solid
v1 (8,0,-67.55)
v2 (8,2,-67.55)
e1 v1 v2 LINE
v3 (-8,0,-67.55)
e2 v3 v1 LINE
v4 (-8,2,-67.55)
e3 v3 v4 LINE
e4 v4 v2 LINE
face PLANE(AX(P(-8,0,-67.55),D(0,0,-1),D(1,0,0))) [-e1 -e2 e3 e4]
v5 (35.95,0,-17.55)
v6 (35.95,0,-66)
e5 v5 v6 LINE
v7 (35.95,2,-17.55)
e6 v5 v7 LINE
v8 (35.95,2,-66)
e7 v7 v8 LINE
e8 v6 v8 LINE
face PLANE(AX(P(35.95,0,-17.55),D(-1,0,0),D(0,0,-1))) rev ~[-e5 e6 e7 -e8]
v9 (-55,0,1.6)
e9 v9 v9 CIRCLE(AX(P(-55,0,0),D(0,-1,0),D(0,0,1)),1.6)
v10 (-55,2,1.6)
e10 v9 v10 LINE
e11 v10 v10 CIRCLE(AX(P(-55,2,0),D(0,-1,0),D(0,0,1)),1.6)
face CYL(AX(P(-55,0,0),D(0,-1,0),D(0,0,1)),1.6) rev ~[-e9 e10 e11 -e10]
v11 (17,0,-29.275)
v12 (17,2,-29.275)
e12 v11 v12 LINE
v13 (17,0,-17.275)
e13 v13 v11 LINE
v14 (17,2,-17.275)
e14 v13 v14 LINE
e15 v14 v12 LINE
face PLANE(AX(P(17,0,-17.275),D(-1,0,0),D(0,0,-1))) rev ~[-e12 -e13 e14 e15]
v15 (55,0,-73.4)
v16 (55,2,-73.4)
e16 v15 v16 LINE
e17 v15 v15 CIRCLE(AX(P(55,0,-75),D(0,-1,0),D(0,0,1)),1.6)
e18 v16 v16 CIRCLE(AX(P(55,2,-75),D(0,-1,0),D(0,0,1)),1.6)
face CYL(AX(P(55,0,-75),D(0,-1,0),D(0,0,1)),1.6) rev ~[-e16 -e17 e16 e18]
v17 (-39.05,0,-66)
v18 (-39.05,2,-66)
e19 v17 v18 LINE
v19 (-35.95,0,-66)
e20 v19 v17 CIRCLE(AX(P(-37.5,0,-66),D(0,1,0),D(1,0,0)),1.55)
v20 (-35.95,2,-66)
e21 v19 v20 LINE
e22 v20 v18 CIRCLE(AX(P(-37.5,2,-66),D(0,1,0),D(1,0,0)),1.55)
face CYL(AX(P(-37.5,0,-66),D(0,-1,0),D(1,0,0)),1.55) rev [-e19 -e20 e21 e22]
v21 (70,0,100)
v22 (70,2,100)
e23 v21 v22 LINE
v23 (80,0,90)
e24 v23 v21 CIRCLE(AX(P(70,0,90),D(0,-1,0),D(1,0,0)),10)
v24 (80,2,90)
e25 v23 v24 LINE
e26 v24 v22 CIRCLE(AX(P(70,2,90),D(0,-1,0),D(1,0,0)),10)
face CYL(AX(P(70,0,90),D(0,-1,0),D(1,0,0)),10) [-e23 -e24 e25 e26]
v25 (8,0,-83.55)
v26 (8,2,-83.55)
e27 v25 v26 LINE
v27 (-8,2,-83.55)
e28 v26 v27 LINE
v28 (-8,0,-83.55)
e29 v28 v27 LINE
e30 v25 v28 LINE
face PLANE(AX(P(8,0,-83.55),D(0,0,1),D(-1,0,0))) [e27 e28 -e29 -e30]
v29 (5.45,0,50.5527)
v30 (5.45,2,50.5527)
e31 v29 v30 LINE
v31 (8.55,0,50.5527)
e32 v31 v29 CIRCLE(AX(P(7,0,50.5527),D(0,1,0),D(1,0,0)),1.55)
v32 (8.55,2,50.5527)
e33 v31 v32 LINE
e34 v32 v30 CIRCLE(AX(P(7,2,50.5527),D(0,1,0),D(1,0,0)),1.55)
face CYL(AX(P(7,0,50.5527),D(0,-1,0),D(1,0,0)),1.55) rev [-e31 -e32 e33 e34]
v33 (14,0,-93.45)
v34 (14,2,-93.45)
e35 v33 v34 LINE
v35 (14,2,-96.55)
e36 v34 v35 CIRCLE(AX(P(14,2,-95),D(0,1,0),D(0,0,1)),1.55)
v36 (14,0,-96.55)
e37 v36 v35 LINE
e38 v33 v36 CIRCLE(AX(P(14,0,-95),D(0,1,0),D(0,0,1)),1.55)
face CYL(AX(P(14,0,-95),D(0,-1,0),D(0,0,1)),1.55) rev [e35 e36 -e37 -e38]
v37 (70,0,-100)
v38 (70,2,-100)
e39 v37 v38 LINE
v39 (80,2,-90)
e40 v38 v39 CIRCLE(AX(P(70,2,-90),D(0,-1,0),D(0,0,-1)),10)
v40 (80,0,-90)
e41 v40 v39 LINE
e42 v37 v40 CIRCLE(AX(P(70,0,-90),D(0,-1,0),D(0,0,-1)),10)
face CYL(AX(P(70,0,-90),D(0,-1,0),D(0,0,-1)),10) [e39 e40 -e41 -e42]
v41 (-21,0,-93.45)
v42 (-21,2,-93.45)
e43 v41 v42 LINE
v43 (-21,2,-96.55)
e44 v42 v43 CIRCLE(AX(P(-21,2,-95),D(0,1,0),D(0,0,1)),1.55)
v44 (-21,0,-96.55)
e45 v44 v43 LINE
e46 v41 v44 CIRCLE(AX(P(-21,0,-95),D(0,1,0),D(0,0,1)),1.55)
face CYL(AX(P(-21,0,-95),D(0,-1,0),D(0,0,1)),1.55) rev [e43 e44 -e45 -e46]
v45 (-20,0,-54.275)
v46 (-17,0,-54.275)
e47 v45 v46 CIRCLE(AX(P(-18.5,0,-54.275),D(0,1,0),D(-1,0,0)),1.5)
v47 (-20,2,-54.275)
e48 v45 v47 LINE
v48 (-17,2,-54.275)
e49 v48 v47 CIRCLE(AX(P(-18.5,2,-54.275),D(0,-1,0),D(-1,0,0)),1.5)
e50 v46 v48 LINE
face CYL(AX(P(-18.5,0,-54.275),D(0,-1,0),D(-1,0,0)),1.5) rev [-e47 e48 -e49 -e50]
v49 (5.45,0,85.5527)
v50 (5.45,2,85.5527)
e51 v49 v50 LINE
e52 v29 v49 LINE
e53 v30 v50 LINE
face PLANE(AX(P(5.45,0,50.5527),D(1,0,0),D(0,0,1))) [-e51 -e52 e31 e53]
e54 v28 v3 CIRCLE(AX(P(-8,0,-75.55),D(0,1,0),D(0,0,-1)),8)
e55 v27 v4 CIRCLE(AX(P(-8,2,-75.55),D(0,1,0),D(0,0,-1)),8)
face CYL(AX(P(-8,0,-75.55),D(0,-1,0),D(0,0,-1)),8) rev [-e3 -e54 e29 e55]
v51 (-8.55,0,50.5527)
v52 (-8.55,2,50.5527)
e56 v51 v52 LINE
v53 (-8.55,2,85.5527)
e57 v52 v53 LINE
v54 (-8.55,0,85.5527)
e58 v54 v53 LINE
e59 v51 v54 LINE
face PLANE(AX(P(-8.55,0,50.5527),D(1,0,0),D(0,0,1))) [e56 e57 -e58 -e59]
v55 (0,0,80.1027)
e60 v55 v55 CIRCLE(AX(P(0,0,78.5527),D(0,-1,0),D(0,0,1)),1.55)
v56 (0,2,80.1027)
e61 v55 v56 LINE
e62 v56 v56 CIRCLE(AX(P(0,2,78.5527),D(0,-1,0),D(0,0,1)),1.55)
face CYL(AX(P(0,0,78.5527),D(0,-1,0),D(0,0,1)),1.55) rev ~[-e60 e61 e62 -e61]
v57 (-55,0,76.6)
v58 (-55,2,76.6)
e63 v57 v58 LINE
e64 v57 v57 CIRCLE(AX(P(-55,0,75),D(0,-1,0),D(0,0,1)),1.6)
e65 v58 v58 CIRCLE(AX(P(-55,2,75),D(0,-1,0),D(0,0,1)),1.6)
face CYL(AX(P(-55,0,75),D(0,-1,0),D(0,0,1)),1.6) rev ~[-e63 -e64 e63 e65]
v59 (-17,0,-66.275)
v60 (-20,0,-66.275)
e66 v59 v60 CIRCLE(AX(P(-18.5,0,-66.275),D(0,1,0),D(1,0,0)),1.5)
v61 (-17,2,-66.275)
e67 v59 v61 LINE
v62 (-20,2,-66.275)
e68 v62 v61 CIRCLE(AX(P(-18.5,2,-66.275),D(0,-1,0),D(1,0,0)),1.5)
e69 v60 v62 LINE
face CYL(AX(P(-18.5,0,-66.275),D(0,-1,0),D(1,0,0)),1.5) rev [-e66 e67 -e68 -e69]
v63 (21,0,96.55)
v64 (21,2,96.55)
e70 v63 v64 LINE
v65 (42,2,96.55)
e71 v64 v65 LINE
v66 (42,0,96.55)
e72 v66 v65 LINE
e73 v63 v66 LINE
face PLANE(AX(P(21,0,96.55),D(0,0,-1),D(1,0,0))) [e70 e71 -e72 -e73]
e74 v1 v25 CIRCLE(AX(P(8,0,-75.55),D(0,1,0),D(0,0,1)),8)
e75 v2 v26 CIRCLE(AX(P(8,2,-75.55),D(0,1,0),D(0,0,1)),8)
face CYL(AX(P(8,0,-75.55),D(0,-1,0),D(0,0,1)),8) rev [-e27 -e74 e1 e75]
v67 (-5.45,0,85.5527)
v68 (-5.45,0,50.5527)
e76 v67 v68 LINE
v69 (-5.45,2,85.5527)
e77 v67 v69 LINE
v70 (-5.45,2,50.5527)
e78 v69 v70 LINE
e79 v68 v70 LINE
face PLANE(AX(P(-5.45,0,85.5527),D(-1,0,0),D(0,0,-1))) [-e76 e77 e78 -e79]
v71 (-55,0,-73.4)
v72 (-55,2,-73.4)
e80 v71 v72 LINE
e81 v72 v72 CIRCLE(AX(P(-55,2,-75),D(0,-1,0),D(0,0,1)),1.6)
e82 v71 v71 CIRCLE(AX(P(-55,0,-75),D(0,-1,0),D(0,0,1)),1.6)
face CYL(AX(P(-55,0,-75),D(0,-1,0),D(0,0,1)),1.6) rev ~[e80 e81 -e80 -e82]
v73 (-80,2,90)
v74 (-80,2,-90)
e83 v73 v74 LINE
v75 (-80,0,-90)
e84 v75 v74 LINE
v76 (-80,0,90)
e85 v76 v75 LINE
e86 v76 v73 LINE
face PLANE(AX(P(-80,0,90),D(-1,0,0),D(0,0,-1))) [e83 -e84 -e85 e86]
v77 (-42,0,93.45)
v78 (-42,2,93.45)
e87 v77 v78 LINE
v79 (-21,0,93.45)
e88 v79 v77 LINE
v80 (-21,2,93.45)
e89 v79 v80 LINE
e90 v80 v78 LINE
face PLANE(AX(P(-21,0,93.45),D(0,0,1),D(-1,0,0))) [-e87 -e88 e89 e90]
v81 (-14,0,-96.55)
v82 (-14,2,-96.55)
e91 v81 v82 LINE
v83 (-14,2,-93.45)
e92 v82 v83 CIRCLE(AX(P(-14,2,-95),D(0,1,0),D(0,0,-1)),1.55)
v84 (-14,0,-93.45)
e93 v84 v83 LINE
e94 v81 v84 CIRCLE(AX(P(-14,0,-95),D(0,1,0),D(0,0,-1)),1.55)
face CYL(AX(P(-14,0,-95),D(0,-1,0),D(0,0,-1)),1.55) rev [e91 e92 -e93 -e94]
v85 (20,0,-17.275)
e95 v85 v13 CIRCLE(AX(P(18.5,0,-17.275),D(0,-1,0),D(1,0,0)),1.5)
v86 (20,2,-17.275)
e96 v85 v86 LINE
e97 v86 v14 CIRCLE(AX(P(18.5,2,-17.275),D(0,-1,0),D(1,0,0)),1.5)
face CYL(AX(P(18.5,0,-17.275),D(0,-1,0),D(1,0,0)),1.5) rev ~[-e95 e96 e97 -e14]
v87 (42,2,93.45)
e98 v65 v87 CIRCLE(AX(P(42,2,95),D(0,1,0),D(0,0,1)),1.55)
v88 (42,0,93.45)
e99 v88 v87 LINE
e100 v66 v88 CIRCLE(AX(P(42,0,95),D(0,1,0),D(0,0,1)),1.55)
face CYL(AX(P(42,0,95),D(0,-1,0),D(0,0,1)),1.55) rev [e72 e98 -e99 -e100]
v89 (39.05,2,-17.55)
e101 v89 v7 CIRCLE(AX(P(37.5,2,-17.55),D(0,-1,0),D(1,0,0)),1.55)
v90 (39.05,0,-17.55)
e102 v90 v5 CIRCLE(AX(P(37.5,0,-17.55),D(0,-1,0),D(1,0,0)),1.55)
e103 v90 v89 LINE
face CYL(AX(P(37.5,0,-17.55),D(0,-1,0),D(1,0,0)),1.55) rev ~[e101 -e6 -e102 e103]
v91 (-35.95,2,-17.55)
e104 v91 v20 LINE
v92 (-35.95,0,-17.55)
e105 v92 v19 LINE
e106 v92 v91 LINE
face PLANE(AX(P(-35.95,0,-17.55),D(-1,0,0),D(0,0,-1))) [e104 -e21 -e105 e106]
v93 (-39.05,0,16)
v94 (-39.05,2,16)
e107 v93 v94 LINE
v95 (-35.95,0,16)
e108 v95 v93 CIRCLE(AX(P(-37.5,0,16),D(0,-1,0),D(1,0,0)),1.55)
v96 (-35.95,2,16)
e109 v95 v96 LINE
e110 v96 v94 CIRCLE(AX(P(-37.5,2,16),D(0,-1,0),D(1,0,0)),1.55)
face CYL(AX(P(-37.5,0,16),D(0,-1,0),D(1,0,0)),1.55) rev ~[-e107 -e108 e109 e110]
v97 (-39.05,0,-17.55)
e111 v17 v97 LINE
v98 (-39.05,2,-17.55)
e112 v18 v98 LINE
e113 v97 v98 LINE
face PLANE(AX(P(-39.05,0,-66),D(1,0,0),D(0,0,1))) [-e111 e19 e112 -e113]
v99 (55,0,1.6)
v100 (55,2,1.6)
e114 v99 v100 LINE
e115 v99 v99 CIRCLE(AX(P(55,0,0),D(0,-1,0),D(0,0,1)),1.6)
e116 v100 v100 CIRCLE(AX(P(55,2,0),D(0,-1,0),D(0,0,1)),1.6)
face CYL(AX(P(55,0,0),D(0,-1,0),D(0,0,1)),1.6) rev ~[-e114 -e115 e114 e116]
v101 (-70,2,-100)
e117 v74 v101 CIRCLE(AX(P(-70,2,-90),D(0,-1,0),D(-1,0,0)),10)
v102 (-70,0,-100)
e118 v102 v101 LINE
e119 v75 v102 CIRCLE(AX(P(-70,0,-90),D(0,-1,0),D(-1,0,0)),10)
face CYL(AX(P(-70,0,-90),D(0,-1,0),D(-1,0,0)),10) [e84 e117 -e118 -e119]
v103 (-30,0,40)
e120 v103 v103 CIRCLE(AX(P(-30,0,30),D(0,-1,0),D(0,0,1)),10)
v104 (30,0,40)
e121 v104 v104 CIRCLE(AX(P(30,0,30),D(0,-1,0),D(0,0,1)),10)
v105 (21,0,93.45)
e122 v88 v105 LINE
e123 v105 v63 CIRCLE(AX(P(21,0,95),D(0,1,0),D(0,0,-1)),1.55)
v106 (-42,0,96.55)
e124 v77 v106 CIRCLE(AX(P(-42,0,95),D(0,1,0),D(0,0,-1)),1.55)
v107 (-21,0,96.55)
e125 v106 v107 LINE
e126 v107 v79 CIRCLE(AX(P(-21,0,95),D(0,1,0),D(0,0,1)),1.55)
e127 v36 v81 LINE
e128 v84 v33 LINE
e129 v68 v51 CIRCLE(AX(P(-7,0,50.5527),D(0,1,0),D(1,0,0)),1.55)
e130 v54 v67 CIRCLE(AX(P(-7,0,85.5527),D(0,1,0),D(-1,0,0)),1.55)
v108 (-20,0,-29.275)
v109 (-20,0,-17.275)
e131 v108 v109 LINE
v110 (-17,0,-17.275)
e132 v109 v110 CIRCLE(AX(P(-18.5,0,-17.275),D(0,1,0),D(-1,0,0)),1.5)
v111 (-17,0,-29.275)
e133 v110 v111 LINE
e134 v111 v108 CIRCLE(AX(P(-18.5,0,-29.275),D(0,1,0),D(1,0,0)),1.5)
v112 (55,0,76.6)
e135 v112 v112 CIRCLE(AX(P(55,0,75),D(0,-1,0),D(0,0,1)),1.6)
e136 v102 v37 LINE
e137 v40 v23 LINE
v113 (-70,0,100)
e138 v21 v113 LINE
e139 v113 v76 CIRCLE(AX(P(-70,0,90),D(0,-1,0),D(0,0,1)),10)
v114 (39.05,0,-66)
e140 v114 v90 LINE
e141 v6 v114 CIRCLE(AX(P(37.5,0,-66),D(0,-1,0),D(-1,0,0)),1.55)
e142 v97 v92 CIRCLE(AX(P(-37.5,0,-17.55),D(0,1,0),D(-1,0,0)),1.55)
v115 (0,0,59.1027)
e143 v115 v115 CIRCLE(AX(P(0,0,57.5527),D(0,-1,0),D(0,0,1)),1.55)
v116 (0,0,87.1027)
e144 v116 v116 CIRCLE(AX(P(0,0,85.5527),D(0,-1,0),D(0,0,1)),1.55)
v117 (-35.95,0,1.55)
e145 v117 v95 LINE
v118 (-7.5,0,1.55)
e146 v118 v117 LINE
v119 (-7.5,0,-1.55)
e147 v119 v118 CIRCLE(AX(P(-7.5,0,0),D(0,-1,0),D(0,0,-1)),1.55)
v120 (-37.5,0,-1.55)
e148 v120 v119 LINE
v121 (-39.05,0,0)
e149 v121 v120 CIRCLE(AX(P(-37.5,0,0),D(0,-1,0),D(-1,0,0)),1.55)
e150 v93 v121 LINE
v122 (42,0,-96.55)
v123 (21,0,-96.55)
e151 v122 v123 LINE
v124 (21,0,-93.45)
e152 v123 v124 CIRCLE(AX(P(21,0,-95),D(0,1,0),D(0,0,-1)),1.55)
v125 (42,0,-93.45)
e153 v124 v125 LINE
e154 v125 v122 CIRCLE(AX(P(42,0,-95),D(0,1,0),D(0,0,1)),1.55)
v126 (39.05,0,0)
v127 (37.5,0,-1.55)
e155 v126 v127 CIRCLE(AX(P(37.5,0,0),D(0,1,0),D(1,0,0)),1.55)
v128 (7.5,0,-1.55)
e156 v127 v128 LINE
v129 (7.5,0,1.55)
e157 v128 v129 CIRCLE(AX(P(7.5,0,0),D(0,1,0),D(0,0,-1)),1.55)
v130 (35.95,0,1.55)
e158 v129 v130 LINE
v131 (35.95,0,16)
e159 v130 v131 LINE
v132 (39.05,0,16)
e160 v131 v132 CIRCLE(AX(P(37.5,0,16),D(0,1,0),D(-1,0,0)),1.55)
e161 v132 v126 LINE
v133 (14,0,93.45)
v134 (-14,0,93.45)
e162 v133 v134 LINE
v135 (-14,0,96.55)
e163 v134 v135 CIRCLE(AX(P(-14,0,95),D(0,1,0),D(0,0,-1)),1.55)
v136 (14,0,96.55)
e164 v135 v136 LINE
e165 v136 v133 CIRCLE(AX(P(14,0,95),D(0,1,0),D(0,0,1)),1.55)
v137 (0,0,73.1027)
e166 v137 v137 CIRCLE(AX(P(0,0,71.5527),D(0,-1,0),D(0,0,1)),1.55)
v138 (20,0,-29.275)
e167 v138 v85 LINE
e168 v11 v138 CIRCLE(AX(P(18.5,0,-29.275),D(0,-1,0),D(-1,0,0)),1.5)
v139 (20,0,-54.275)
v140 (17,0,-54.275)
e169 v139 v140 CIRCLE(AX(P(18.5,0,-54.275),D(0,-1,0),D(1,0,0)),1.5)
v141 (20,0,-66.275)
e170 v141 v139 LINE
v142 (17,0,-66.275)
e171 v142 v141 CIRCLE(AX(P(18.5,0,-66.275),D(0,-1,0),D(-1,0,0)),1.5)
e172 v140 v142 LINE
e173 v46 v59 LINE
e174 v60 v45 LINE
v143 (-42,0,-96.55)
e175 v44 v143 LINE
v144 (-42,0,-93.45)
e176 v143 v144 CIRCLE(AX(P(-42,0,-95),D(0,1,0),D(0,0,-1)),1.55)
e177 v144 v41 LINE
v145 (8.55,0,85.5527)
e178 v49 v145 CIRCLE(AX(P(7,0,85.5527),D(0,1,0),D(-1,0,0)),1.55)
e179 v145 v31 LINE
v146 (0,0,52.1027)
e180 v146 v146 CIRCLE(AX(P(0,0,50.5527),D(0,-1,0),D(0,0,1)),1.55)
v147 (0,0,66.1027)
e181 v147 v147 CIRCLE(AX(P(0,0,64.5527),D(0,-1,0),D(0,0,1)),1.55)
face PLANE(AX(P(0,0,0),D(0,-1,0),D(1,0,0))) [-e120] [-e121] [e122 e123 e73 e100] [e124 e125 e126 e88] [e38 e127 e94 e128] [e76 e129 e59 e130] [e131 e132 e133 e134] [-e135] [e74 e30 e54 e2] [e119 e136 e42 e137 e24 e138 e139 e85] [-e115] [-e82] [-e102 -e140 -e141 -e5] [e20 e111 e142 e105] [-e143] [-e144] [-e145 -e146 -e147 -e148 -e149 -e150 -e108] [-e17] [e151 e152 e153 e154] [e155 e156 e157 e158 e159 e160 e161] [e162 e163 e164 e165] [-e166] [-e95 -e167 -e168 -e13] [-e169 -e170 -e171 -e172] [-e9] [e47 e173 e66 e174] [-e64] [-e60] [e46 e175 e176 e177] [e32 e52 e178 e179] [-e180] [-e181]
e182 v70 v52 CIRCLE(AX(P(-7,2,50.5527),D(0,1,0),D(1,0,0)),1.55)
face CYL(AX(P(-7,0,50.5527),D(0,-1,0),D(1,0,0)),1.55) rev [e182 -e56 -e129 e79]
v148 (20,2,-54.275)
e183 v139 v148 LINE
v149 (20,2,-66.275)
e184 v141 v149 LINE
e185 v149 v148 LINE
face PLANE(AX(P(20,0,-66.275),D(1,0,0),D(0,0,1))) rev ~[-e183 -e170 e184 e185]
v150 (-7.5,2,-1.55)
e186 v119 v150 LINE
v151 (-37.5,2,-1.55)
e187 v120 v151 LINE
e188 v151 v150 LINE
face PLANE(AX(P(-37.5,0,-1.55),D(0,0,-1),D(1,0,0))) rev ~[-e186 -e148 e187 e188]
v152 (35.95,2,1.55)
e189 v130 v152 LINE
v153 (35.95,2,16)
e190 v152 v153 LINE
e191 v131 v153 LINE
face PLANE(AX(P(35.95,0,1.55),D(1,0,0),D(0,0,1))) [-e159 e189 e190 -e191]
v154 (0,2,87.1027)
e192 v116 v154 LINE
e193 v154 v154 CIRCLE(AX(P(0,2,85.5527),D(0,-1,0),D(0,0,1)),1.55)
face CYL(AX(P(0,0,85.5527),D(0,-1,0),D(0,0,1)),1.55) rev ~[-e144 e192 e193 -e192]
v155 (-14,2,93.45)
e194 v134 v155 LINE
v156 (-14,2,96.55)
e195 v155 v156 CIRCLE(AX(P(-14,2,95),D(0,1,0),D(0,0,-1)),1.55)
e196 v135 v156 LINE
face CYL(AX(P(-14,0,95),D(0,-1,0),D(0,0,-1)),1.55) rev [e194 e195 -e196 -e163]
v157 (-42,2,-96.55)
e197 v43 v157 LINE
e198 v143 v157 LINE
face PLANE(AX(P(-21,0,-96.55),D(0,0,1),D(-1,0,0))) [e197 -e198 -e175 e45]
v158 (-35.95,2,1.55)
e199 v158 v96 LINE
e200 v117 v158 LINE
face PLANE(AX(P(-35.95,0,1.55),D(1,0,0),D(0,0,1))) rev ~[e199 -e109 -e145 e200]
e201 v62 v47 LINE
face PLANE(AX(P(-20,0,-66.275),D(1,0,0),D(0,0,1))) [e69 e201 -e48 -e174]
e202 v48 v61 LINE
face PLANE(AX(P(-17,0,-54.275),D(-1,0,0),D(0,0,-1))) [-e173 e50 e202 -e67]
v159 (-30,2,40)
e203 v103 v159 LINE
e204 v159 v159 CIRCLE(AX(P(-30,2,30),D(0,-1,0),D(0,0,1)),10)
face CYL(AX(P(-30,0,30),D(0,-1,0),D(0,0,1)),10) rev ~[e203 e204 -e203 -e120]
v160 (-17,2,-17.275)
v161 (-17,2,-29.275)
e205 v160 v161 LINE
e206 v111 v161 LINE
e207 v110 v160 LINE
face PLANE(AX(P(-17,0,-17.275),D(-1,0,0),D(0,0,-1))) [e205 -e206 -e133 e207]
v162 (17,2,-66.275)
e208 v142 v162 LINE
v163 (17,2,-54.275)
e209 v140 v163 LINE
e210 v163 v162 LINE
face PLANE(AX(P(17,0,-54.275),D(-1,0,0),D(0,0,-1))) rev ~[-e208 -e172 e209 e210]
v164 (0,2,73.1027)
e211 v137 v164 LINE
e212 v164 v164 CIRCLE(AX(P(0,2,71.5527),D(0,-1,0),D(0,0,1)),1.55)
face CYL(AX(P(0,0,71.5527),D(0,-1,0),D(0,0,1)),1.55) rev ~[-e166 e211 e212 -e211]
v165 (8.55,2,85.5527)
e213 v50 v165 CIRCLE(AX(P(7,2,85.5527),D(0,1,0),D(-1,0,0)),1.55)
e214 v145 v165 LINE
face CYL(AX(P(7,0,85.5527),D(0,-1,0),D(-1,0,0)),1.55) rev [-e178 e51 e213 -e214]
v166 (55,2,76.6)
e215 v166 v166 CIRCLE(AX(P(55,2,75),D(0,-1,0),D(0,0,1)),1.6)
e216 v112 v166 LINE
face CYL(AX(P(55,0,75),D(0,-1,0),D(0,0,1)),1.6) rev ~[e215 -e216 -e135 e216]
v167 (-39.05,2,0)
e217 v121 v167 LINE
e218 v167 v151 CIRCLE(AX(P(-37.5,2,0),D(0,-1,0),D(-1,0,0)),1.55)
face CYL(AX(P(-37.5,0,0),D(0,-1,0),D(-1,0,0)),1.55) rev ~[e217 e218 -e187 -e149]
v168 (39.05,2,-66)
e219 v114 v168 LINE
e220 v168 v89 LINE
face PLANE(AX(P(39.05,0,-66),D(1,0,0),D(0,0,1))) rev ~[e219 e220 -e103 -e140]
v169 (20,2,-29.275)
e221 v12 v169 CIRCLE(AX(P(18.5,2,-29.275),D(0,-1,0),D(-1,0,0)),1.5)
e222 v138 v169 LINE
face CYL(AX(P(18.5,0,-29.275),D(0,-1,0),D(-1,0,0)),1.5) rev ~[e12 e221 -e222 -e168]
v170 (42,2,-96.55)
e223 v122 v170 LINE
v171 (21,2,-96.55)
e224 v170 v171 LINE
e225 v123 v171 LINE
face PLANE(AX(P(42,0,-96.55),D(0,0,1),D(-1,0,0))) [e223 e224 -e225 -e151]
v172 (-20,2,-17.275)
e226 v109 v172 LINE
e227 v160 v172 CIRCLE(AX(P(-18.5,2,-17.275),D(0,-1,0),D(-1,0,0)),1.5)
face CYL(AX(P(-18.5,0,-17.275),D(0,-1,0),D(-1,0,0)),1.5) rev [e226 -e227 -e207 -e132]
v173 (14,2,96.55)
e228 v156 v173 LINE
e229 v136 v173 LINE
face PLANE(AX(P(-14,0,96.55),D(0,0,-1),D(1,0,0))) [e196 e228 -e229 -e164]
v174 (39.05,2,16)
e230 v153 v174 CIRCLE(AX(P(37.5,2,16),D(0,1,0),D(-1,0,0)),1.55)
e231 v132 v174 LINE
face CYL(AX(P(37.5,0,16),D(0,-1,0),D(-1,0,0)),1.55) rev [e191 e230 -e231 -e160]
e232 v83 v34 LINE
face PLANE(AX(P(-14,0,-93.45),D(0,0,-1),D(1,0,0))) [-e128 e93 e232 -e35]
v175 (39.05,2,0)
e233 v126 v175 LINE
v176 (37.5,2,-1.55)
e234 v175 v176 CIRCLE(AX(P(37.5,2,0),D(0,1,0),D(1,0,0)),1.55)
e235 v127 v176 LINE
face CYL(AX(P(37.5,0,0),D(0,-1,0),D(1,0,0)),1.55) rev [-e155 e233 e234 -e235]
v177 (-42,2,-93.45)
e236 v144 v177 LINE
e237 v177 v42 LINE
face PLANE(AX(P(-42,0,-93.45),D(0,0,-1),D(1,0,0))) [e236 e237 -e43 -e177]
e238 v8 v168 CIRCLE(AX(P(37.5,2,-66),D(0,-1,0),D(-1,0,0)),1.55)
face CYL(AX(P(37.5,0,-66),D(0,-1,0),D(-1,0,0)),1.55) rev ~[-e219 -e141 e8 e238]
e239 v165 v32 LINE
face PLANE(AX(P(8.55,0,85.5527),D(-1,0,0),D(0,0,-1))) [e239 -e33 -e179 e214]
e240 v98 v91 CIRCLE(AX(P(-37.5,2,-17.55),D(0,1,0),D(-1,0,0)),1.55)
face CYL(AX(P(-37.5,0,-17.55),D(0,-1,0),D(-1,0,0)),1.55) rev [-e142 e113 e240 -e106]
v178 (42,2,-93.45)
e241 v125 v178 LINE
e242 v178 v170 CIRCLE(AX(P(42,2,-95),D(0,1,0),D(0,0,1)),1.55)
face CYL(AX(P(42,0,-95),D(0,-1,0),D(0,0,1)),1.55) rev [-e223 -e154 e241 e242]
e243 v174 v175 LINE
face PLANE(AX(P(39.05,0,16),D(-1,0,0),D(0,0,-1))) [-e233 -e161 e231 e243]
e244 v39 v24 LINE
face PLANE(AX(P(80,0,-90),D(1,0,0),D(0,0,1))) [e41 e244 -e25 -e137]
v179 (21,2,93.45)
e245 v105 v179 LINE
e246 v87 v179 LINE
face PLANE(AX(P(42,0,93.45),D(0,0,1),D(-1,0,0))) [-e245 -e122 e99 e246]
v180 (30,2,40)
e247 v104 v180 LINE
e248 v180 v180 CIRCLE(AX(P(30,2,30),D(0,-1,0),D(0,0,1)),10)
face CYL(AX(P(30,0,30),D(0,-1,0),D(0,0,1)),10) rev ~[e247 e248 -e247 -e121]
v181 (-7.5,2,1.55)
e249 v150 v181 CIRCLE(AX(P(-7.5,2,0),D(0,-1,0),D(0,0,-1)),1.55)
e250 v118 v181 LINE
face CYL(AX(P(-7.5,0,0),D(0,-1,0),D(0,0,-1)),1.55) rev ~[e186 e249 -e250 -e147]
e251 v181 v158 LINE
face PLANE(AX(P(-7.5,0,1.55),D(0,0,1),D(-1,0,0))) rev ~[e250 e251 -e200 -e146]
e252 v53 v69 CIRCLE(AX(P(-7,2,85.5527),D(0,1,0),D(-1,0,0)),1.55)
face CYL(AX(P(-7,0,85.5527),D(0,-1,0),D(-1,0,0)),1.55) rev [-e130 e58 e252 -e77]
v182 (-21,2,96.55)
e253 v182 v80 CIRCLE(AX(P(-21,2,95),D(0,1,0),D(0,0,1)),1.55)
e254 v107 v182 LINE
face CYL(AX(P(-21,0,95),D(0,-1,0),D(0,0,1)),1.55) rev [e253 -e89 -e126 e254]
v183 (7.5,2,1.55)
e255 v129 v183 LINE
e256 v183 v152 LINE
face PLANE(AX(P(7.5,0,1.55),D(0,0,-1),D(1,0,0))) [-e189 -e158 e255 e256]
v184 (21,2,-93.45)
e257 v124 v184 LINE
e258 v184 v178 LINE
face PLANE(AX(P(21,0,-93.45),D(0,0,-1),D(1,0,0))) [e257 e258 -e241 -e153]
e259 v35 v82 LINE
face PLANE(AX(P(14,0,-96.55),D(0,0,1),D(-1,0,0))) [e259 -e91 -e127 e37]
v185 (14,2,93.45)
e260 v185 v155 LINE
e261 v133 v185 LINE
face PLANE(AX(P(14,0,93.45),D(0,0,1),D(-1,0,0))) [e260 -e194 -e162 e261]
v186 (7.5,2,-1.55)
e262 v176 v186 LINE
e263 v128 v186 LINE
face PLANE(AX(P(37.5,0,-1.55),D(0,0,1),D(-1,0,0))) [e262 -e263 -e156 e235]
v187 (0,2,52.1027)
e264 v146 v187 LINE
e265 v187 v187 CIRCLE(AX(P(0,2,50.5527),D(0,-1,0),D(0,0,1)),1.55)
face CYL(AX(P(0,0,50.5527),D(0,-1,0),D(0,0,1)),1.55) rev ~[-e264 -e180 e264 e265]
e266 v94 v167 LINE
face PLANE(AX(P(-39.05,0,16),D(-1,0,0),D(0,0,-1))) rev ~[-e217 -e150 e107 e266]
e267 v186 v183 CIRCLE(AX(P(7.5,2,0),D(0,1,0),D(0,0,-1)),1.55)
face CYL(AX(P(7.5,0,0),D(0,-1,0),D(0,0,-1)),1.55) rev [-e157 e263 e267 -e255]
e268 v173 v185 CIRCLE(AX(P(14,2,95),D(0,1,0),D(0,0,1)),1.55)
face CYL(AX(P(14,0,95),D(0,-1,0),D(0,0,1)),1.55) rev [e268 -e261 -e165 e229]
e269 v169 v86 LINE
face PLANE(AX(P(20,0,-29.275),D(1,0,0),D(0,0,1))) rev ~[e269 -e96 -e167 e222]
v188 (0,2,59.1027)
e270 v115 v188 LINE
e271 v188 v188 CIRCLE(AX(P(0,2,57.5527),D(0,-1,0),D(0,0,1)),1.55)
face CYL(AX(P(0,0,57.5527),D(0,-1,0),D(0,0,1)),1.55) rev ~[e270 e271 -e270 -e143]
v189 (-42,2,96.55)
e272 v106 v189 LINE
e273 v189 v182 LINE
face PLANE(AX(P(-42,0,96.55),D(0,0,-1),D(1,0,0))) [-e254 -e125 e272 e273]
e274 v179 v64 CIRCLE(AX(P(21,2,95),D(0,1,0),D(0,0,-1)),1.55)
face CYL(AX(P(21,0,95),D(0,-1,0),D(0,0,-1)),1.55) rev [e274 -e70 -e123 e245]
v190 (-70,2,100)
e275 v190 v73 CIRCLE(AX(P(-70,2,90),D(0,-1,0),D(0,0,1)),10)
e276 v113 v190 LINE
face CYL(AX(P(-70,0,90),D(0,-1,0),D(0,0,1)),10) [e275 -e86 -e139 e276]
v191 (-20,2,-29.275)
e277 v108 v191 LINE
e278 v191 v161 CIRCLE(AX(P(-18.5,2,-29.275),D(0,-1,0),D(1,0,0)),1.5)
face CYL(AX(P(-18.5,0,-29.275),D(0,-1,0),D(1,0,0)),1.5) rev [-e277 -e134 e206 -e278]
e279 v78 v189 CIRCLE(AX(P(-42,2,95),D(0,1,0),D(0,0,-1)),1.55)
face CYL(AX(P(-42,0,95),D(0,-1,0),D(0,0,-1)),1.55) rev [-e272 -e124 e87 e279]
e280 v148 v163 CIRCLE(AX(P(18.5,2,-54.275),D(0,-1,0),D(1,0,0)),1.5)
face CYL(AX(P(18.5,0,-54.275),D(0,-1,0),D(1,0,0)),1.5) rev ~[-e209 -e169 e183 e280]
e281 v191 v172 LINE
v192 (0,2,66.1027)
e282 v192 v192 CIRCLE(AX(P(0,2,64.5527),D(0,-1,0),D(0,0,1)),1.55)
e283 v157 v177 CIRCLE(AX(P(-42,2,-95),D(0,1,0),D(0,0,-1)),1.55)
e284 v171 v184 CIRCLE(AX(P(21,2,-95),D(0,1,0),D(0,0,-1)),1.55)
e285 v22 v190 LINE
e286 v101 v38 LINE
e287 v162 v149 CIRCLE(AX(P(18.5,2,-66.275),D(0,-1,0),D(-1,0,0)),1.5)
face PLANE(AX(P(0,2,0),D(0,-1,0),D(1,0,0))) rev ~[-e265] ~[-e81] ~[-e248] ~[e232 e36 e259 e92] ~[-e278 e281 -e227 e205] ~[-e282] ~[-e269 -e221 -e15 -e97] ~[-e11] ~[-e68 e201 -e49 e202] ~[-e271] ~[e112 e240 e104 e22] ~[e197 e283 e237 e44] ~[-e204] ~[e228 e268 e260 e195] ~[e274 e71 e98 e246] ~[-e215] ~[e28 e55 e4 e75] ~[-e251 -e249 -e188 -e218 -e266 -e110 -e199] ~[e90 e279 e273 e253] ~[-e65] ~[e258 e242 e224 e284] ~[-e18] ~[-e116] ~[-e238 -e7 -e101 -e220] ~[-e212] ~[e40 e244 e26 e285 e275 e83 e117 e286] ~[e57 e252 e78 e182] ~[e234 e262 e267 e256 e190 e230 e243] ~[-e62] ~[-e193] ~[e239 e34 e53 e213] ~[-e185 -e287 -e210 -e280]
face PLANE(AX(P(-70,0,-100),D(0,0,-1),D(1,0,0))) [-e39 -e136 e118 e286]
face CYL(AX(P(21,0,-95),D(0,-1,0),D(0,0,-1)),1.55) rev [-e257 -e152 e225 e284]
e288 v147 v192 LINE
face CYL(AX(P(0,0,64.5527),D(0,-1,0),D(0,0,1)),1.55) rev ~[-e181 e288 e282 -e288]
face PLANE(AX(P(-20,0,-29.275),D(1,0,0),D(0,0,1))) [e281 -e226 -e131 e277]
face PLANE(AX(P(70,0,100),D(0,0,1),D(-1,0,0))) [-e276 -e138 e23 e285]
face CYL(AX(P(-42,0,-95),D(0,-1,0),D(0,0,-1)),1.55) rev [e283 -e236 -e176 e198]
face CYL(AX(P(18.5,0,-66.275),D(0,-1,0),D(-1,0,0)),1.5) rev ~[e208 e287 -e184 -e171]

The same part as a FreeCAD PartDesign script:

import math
import FreeCAD as App
import Part
import Sketcher
from FreeCAD import Vector

doc = App.newDocument("Part")
body = doc.addObject("PartDesign::Body", "Body")

sketch1 = body.newObject("Sketcher::SketchObject", "Sketch")
sketch1.AttachmentSupport = (doc.getObject("XZ_Plane"), [""])
sketch1.MapMode = "FlatFace"
sketch1.addGeometry([
    Part.LineSegment(Vector(-70, -100, 0), Vector(70, -100, 0)),
    Part.ArcOfCircle(Part.Circle(Vector(70, -90, 0), Vector(0, 0, 1), 10), math.radians(-90), math.radians(0)),
    Part.LineSegment(Vector(80, -90, 0), Vector(80, 90, 0)),
    Part.ArcOfCircle(Part.Circle(Vector(70, 90, 0), Vector(0, 0, 1), 10), math.radians(0), math.radians(90)),
    Part.LineSegment(Vector(70, 100, 0), Vector(-70, 100, 0)),
    Part.ArcOfCircle(Part.Circle(Vector(-70, 90, 0), Vector(0, 0, 1), 10), math.radians(90), math.radians(180)),
    Part.LineSegment(Vector(-80, 90, 0), Vector(-80, -90, 0)),
    Part.ArcOfCircle(Part.Circle(Vector(-70, -90, 0), Vector(0, 0, 1), 10), math.radians(180), math.radians(270)),
    Part.Circle(Vector(-55, -75, 0), Vector(0, 0, 1), 1.6),
    Part.ArcOfCircle(Part.Circle(Vector(-42, -95, 0), Vector(0, 0, 1), 1.55), math.radians(90), math.radians(270)),
    Part.LineSegment(Vector(-42, -93.45, 0), Vector(-21, -93.45, 0)),
    Part.ArcOfCircle(Part.Circle(Vector(-21, -95, 0), Vector(0, 0, 1), 1.55), math.radians(-90), math.radians(90)),
    Part.LineSegment(Vector(-21, -96.55, 0), Vector(-42, -96.55, 0)),
    Part.ArcOfCircle(Part.Circle(Vector(-37.5, -17.55, 0), Vector(0, 0, 1), 1.55), math.radians(0), math.radians(180)),
    Part.LineSegment(Vector(-35.95, -17.55, 0), Vector(-35.95, -66, 0)),
    Part.ArcOfCircle(Part.Circle(Vector(-37.5, -66, 0), Vector(0, 0, 1), 1.55), math.radians(180), math.radians(360)),
    Part.LineSegment(Vector(-39.05, -66, 0), Vector(-39.05, -17.55, 0)),
    Part.ArcOfCircle(Part.Circle(Vector(-14, -95, 0), Vector(0, 0, 1), 1.55), math.radians(90), math.radians(270)),
    Part.LineSegment(Vector(-14, -93.45, 0), Vector(14, -93.45, 0)),
    Part.ArcOfCircle(Part.Circle(Vector(14, -95, 0), Vector(0, 0, 1), 1.55), math.radians(-90), math.radians(90)),
    Part.LineSegment(Vector(14, -96.55, 0), Vector(-14, -96.55, 0)),
    Part.ArcOfCircle(Part.Circle(Vector(8, -75.55, 0), Vector(0, 0, 1), 8), math.radians(-90), math.radians(90)),
    Part.LineSegment(Vector(8, -83.55, 0), Vector(-8, -83.55, 0)),
    Part.ArcOfCircle(Part.Circle(Vector(-8, -75.55, 0), Vector(0, 0, 1), 8), math.radians(90), math.radians(270)),
    Part.LineSegment(Vector(-8, -67.55, 0), Vector(8, -67.55, 0)),
    Part.ArcOfCircle(Part.Circle(Vector(21, -95, 0), Vector(0, 0, 1), 1.55), math.radians(90), math.radians(270)),
    Part.LineSegment(Vector(21, -93.45, 0), Vector(42, -93.45, 0)),
    Part.ArcOfCircle(Part.Circle(Vector(42, -95, 0), Vector(0, 0, 1), 1.55), math.radians(-90), math.radians(90)),
    Part.LineSegment(Vector(42, -96.55, 0), Vector(21, -96.55, 0)),
    Part.Circle(Vector(55, -75, 0), Vector(0, 0, 1), 1.6),
    Part.LineSegment(Vector(39.05, -17.55, 0), Vector(39.05, -66, 0)),
    Part.ArcOfCircle(Part.Circle(Vector(37.5, -66, 0), Vector(0, 0, 1), 1.55), math.radians(180), math.radians(360)),
    Part.LineSegment(Vector(35.95, -66, 0), Vector(35.95, -17.55, 0)),
    Part.ArcOfCircle(Part.Circle(Vector(37.5, -17.55, 0), Vector(0, 0, 1), 1.55), math.radians(0), math.radians(180)),
    Part.Circle(Vector(-55, 0, 0), Vector(0, 0, 1), 1.6),
    Part.Circle(Vector(-30, 30, 0), Vector(0, 0, 1), 10),
    Part.LineSegment(Vector(-35.95, 16, 0), Vector(-35.95, 1.55, 0)),
    Part.LineSegment(Vector(-35.95, 1.55, 0), Vector(-7.5, 1.55, 0)),
    Part.ArcOfCircle(Part.Circle(Vector(-7.5, 0, 0), Vector(0, 0, 1), 1.55), math.radians(-90), math.radians(90)),
    Part.LineSegment(Vector(-7.5, -1.55, 0), Vector(-37.5, -1.55, 0)),
    Part.ArcOfCircle(Part.Circle(Vector(-37.5, 0, 0), Vector(0, 0, 1), 1.55), math.radians(180), math.radians(270)),
    Part.LineSegment(Vector(-39.05, 0, 0), Vector(-39.05, 16, 0)),
    Part.ArcOfCircle(Part.Circle(Vector(-37.5, 16, 0), Vector(0, 0, 1), 1.55), math.radians(0), math.radians(180)),
    Part.Circle(Vector(-55, 75, 0), Vector(0, 0, 1), 1.6),
    Part.ArcOfCircle(Part.Circle(Vector(-21, 95, 0), Vector(0, 0, 1), 1.55), math.radians(-90), math.radians(90)),
    Part.LineSegment(Vector(-21, 93.45, 0), Vector(-42, 93.45, 0)),
    Part.ArcOfCircle(Part.Circle(Vector(-42, 95, 0), Vector(0, 0, 1), 1.55), math.radians(90), math.radians(270)),
    Part.LineSegment(Vector(-42, 96.55, 0), Vector(-21, 96.55, 0)),
    Part.ArcOfCircle(Part.Circle(Vector(-7, 50.5527, 0), Vector(0, 0, 1), 1.55), math.radians(180), math.radians(360)),
    Part.LineSegment(Vector(-8.55, 50.5527, 0), Vector(-8.55, 85.5527, 0)),
    Part.ArcOfCircle(Part.Circle(Vector(-7, 85.5527, 0), Vector(0, 0, 1), 1.55), math.radians(0), math.radians(180)),
    Part.LineSegment(Vector(-5.45, 85.5527, 0), Vector(-5.45, 50.5527, 0)),
    Part.ArcOfCircle(Part.Circle(Vector(37.5, 0, 0), Vector(0, 0, 1), 1.55), math.radians(-90), math.radians(0)),
    Part.LineSegment(Vector(37.5, -1.55, 0), Vector(7.5, -1.55, 0)),
    Part.ArcOfCircle(Part.Circle(Vector(7.5, 0, 0), Vector(0, 0, 1), 1.55), math.radians(90), math.radians(270)),
    Part.LineSegment(Vector(7.5, 1.55, 0), Vector(35.95, 1.55, 0)),
    Part.LineSegment(Vector(35.95, 1.55, 0), Vector(35.95, 16, 0)),
    Part.ArcOfCircle(Part.Circle(Vector(37.5, 16, 0), Vector(0, 0, 1), 1.55), math.radians(0), math.radians(180)),
    Part.LineSegment(Vector(39.05, 16, 0), Vector(39.05, 0, 0)),
    Part.Circle(Vector(55, 0, 0), Vector(0, 0, 1), 1.6),
    Part.Circle(Vector(30, 30, 0), Vector(0, 0, 1), 10),
    Part.Circle(Vector(0, 50.5527, 0), Vector(0, 0, 1), 1.55),
    Part.Circle(Vector(0, 57.5527, 0), Vector(0, 0, 1), 1.55),
    Part.Circle(Vector(0, 64.5527, 0), Vector(0, 0, 1), 1.55),
    Part.Circle(Vector(0, 71.5527, 0), Vector(0, 0, 1), 1.55),
    Part.ArcOfCircle(Part.Circle(Vector(7, 85.5527, 0), Vector(0, 0, 1), 1.55), math.radians(0), math.radians(180)),
    Part.LineSegment(Vector(8.55, 85.5527, 0), Vector(8.55, 50.5527, 0)),
    Part.ArcOfCircle(Part.Circle(Vector(7, 50.5527, 0), Vector(0, 0, 1), 1.55), math.radians(180), math.radians(360)),
    Part.LineSegment(Vector(5.45, 50.5527, 0), Vector(5.45, 85.5527, 0)),
    Part.Circle(Vector(0, 78.5527, 0), Vector(0, 0, 1), 1.55),
    Part.Circle(Vector(0, 85.5527, 0), Vector(0, 0, 1), 1.55),
    Part.ArcOfCircle(Part.Circle(Vector(14, 95, 0), Vector(0, 0, 1), 1.55), math.radians(-90), math.radians(90)),
    Part.LineSegment(Vector(14, 93.45, 0), Vector(-14, 93.45, 0)),
    Part.ArcOfCircle(Part.Circle(Vector(-14, 95, 0), Vector(0, 0, 1), 1.55), math.radians(90), math.radians(270)),
    Part.LineSegment(Vector(-14, 96.55, 0), Vector(14, 96.55, 0)),
    Part.ArcOfCircle(Part.Circle(Vector(42, 95, 0), Vector(0, 0, 1), 1.55), math.radians(-90), math.radians(90)),
    Part.LineSegment(Vector(42, 93.45, 0), Vector(21, 93.45, 0)),
    Part.ArcOfCircle(Part.Circle(Vector(21, 95, 0), Vector(0, 0, 1), 1.55), math.radians(90), math.radians(270)),
    Part.LineSegment(Vector(21, 96.55, 0), Vector(42, 96.55, 0)),
    Part.Circle(Vector(55, 75, 0), Vector(0, 0, 1), 1.6),
], False)
sketch1.addConstraint([
    Sketcher.Constraint("Tangent", 0, 2, 1, 1),
    Sketcher.Constraint("Tangent", 1, 2, 2, 1),
    Sketcher.Constraint("Tangent", 2, 2, 3, 1),
    Sketcher.Constraint("Tangent", 3, 2, 4, 1),
    Sketcher.Constraint("Tangent", 4, 2, 5, 1),
    Sketcher.Constraint("Tangent", 5, 2, 6, 1),
    Sketcher.Constraint("Tangent", 6, 2, 7, 1),
    Sketcher.Constraint("Tangent", 7, 2, 0, 1),
    Sketcher.Constraint("Tangent", 9, 1, 10, 1),
    Sketcher.Constraint("Tangent", 10, 2, 11, 2),
    Sketcher.Constraint("Tangent", 11, 1, 12, 1),
    Sketcher.Constraint("Tangent", 12, 2, 9, 2),
    Sketcher.Constraint("Tangent", 13, 1, 14, 1),
    Sketcher.Constraint("Tangent", 14, 2, 15, 2),
    Sketcher.Constraint("Tangent", 15, 1, 16, 1),
    Sketcher.Constraint("Tangent", 16, 2, 13, 2),
    Sketcher.Constraint("Tangent", 17, 1, 18, 1),
    Sketcher.Constraint("Tangent", 18, 2, 19, 2),
    Sketcher.Constraint("Tangent", 19, 1, 20, 1),
    Sketcher.Constraint("Tangent", 20, 2, 17, 2),
    Sketcher.Constraint("Tangent", 21, 1, 22, 1),
    Sketcher.Constraint("Tangent", 22, 2, 23, 2),
    Sketcher.Constraint("Tangent", 23, 1, 24, 1),
    Sketcher.Constraint("Tangent", 24, 2, 21, 2),
    Sketcher.Constraint("Tangent", 25, 1, 26, 1),
    Sketcher.Constraint("Tangent", 26, 2, 27, 2),
    Sketcher.Constraint("Tangent", 27, 1, 28, 1),
    Sketcher.Constraint("Tangent", 28, 2, 25, 2),
    Sketcher.Constraint("Tangent", 30, 2, 31, 2),
    Sketcher.Constraint("Tangent", 31, 1, 32, 1),
    Sketcher.Constraint("Tangent", 32, 2, 33, 2),
    Sketcher.Constraint("Tangent", 33, 1, 30, 1),
    Sketcher.Constraint("Coincident", 36, 2, 37, 1),
    Sketcher.Constraint("Tangent", 37, 2, 38, 2),
    Sketcher.Constraint("Tangent", 38, 1, 39, 1),
    Sketcher.Constraint("Tangent", 39, 2, 40, 2),
    Sketcher.Constraint("Tangent", 40, 1, 41, 1),
    Sketcher.Constraint("Tangent", 41, 2, 42, 2),
    Sketcher.Constraint("Tangent", 42, 1, 36, 1),
    Sketcher.Constraint("Tangent", 44, 1, 45, 1),
    Sketcher.Constraint("Tangent", 45, 2, 46, 2),
    Sketcher.Constraint("Tangent", 46, 1, 47, 1),
    Sketcher.Constraint("Tangent", 47, 2, 44, 2),
    Sketcher.Constraint("Tangent", 48, 1, 49, 1),
    Sketcher.Constraint("Tangent", 49, 2, 50, 2),
    Sketcher.Constraint("Tangent", 50, 1, 51, 1),
    Sketcher.Constraint("Tangent", 51, 2, 48, 2),
    Sketcher.Constraint("Tangent", 52, 1, 53, 1),
    Sketcher.Constraint("Tangent", 53, 2, 54, 2),
    Sketcher.Constraint("Tangent", 54, 1, 55, 1),
    Sketcher.Constraint("Coincident", 55, 2, 56, 1),
    Sketcher.Constraint("Tangent", 56, 2, 57, 2),
    Sketcher.Constraint("Tangent", 57, 1, 58, 1),
    Sketcher.Constraint("Tangent", 58, 2, 52, 2),
    Sketcher.Constraint("Tangent", 65, 1, 66, 1),
    Sketcher.Constraint("Tangent", 66, 2, 67, 2),
    Sketcher.Constraint("Tangent", 67, 1, 68, 1),
    Sketcher.Constraint("Tangent", 68, 2, 65, 2),
    Sketcher.Constraint("Tangent", 71, 1, 72, 1),
    Sketcher.Constraint("Tangent", 72, 2, 73, 2),
    Sketcher.Constraint("Tangent", 73, 1, 74, 1),
    Sketcher.Constraint("Tangent", 74, 2, 71, 2),
    Sketcher.Constraint("Tangent", 75, 1, 76, 1),
    Sketcher.Constraint("Tangent", 76, 2, 77, 2),
    Sketcher.Constraint("Tangent", 77, 1, 78, 1),
    Sketcher.Constraint("Tangent", 78, 2, 75, 2),
    Sketcher.Constraint("Horizontal", 0),
    Sketcher.Constraint("Vertical", 2),
    Sketcher.Constraint("Horizontal", 4),
    Sketcher.Constraint("Vertical", 6),
    Sketcher.Constraint("Horizontal", 10),
    Sketcher.Constraint("Horizontal", 12),
    Sketcher.Constraint("Vertical", 14),
    Sketcher.Constraint("Vertical", 16),
    Sketcher.Constraint("Horizontal", 18),
    Sketcher.Constraint("Horizontal", 20),
    Sketcher.Constraint("Horizontal", 22),
    Sketcher.Constraint("Horizontal", 24),
    Sketcher.Constraint("Horizontal", 26),
    Sketcher.Constraint("Horizontal", 28),
    Sketcher.Constraint("Vertical", 30),
    Sketcher.Constraint("Vertical", 32),
    Sketcher.Constraint("Vertical", 36),
    Sketcher.Constraint("Horizontal", 37),
    Sketcher.Constraint("Horizontal", 39),
    Sketcher.Constraint("Vertical", 41),
    Sketcher.Constraint("Horizontal", 45),
    Sketcher.Constraint("Horizontal", 47),
    Sketcher.Constraint("Vertical", 49),
    Sketcher.Constraint("Vertical", 51),
    Sketcher.Constraint("Horizontal", 53),
    Sketcher.Constraint("Horizontal", 55),
    Sketcher.Constraint("Vertical", 56),
    Sketcher.Constraint("Vertical", 58),
    Sketcher.Constraint("Vertical", 66),
    Sketcher.Constraint("Vertical", 68),
    Sketcher.Constraint("Horizontal", 72),
    Sketcher.Constraint("Horizontal", 74),
    Sketcher.Constraint("Horizontal", 76),
    Sketcher.Constraint("Horizontal", 78),
    Sketcher.Constraint("Equal", 1, 3),
    Sketcher.Constraint("Equal", 3, 5),
    Sketcher.Constraint("Equal", 5, 7),
    Sketcher.Constraint("Equal", 11, 13),
    Sketcher.Constraint("Equal", 15, 17),
    Sketcher.Constraint("Equal", 19, 25),
    Sketcher.Constraint("Equal", 8, 29),
    Sketcher.Constraint("Equal", 27, 31),
    Sketcher.Constraint("Equal", 29, 34),
    Sketcher.Constraint("Equal", 7, 35),
    Sketcher.Constraint("Equal", 33, 38),
    Sketcher.Constraint("Equal", 38, 40),
    Sketcher.Constraint("Equal", 40, 42),
    Sketcher.Constraint("Equal", 34, 43),
    Sketcher.Constraint("Equal", 42, 44),
    Sketcher.Constraint("Equal", 46, 48),
    Sketcher.Constraint("Equal", 50, 52),
    Sketcher.Constraint("Equal", 52, 54),
    Sketcher.Constraint("Equal", 54, 57),
    Sketcher.Constraint("Equal", 43, 59),
    Sketcher.Constraint("Equal", 35, 60),
    Sketcher.Constraint("Equal", 57, 61),
    Sketcher.Constraint("Equal", 61, 62),
    Sketcher.Constraint("Equal", 62, 63),
    Sketcher.Constraint("Equal", 63, 64),
    Sketcher.Constraint("Equal", 64, 65),
    Sketcher.Constraint("Equal", 67, 69),
    Sketcher.Constraint("Equal", 69, 70),
    Sketcher.Constraint("Equal", 70, 71),
    Sketcher.Constraint("Equal", 73, 75),
    Sketcher.Constraint("Equal", 59, 79),
    Sketcher.Constraint("Symmetric", 1, 3, 5, 3, -1, 1),
    Sketcher.Constraint("Symmetric", 29, 3, 43, 3, -1, 1),
    Sketcher.Constraint("Symmetric", 25, 3, 44, 3, -1, 1),
    Sketcher.Constraint("Symmetric", 40, 3, 52, 3, -1, 1),
    Sketcher.Constraint("Symmetric", 34, 3, 59, 3, -1, 1),
    Sketcher.Constraint("Symmetric", 17, 3, 71, 3, -1, 1),
    Sketcher.Constraint("Symmetric", 9, 3, 75, 3, -1, 1),
    Sketcher.Constraint("Symmetric", 8, 3, 79, 3, -1, 1),
    Sketcher.Constraint("Symmetric", 11, 3, 25, 3, -2),
    Sketcher.Constraint("Symmetric", 8, 3, 29, 3, -2),
    Sketcher.Constraint("Symmetric", 15, 3, 31, 3, -2),
    Sketcher.Constraint("Symmetric", 38, 3, 54, 3, -2),
    Sketcher.Constraint("Symmetric", 35, 3, 60, 3, -2),
    Sketcher.Constraint("Symmetric", 50, 3, 65, 3, -2),
    Sketcher.Constraint("PointOnObject", 34, 3, -1),
    Sketcher.Constraint("PointOnObject", 61, 3, -2),
    Sketcher.Constraint("PointOnObject", 62, 3, -2),
    Sketcher.Constraint("PointOnObject", 63, 3, -2),
    Sketcher.Constraint("PointOnObject", 64, 3, -2),
    Sketcher.Constraint("PointOnObject", 69, 3, -2),
    Sketcher.Constraint("PointOnObject", 70, 3, -2),
    Sketcher.Constraint("Horizontal", 11, 3, 17, 3),
    Sketcher.Constraint("Horizontal", 13, 3, 33, 3),
    Sketcher.Constraint("Horizontal", 42, 3, 57, 3),
    Sketcher.Constraint("Horizontal", 48, 3, 61, 3),
    Sketcher.Constraint("Horizontal", 61, 3, 67, 3),
    Sketcher.Constraint("Horizontal", 65, 3, 70, 3),
    Sketcher.Constraint("Vertical", 8, 3, 34, 3),
    Sketcher.Constraint("Vertical", 15, 3, 40, 3),
    Sketcher.Constraint("Vertical", 9, 3, 46, 3),
    Sketcher.Constraint("Vertical", 19, 3, 71, 3),
    Sketcher.Constraint("Vertical", 17, 3, 73, 3),
    Sketcher.Constraint("Vertical", 27, 3, 75, 3),
    Sketcher.Constraint("Vertical", 25, 3, 77, 3),
    Sketcher.Constraint("Equal", 24, 41),
    Sketcher.Constraint("Diameter", 35, 20.0),
    Sketcher.Constraint("Radius", 21, 8.0),
    Sketcher.Constraint("Diameter", 8, 3.2),
    Sketcher.Constraint("Diameter", 61, 3.1),
    Sketcher.Constraint("DistanceX", 0, 1, 0, 2, 140.0),
    Sketcher.Constraint("DistanceX", 10, 1, 10, 2, 21.0),
    Sketcher.Constraint("DistanceX", 18, 1, 18, 2, 28.0),
    Sketcher.Constraint("DistanceX", 22, 2, 22, 1, 16.0),
    Sketcher.Constraint("DistanceX", 39, 2, 39, 1, 30.0),
    Sketcher.Constraint("DistanceY", 2, 1, 2, 2, 180.0),
    Sketcher.Constraint("DistanceY", 49, 1, 49, 2, 35.0),
    Sketcher.Constraint("DistanceX", 8, 3, -1, 1, 55.0),
    Sketcher.Constraint("DistanceY", 8, 3, -1, 1, 75.0),
    Sketcher.Constraint("DistanceX", 9, 3, -1, 1, 42.0),
    Sketcher.Constraint("DistanceY", 9, 3, -1, 1, 95.0),
    Sketcher.Constraint("DistanceY", 15, 3, -1, 1, 66.0),
    Sketcher.Constraint("DistanceX", -1, 1, 21, 3, 8.0),
    Sketcher.Constraint("DistanceX", 35, 3, -1, 1, 30.0),
    Sketcher.Constraint("DistanceY", -1, 1, 35, 3, 30.0),
    Sketcher.Constraint("DistanceX", 48, 3, -1, 1, 7.0),
    Sketcher.Constraint("DistanceY", 14, 2, 14, 1, 48.45),
    Sketcher.Constraint("DistanceX", 13, 3, -1, 1, 37.5),
    Sketcher.Constraint("DistanceY", 21, 3, -1, 1, 75.55),
    Sketcher.Constraint("DistanceY", -1, 1, 48, 3, 50.5527),
    Sketcher.Constraint("DistanceY", -1, 1, 62, 3, 57.5527),
    Sketcher.Constraint("DistanceY", -1, 1, 63, 3, 64.5527),
    Sketcher.Constraint("DistanceY", -1, 1, 64, 3, 71.5527),
    Sketcher.Constraint("DistanceY", -1, 1, 69, 3, 78.5527),
])
pad1 = body.newObject("PartDesign::Pad", "Pad")
pad1.Profile = sketch1
pad1.Length = 2
pad1.Reversed = True

sketch2 = body.newObject("Sketcher::SketchObject", "Sketch001")
sketch2.AttachmentSupport = (doc.getObject("XZ_Plane"), [""])
sketch2.MapMode = "FlatFace"
sketch2.addGeometry([
    Part.LineSegment(Vector(-17, -29.275, 0), Vector(-17, -17.275, 0)),
    Part.ArcOfCircle(Part.Circle(Vector(-18.5, -17.275, 0), Vector(0, 0, 1), 1.5), math.radians(0), math.radians(180)),
    Part.LineSegment(Vector(-20, -17.275, 0), Vector(-20, -29.275, 0)),
    Part.ArcOfCircle(Part.Circle(Vector(-18.5, -29.275, 0), Vector(0, 0, 1), 1.5), math.radians(180), math.radians(360)),
    Part.LineSegment(Vector(-17, -66.275, 0), Vector(-17, -54.275, 0)),
    Part.ArcOfCircle(Part.Circle(Vector(-18.5, -54.275, 0), Vector(0, 0, 1), 1.5), math.radians(0), math.radians(180)),
    Part.LineSegment(Vector(-20, -54.275, 0), Vector(-20, -66.275, 0)),
    Part.ArcOfCircle(Part.Circle(Vector(-18.5, -66.275, 0), Vector(0, 0, 1), 1.5), math.radians(180), math.radians(360)),
    Part.LineSegment(Vector(17, -54.275, 0), Vector(17, -66.275, 0)),
    Part.ArcOfCircle(Part.Circle(Vector(18.5, -66.275, 0), Vector(0, 0, 1), 1.5), math.radians(180), math.radians(360)),
    Part.LineSegment(Vector(20, -66.275, 0), Vector(20, -54.275, 0)),
    Part.ArcOfCircle(Part.Circle(Vector(18.5, -54.275, 0), Vector(0, 0, 1), 1.5), math.radians(0), math.radians(180)),
    Part.LineSegment(Vector(17, -17.275, 0), Vector(17, -29.275, 0)),
    Part.ArcOfCircle(Part.Circle(Vector(18.5, -29.275, 0), Vector(0, 0, 1), 1.5), math.radians(180), math.radians(360)),
    Part.LineSegment(Vector(20, -29.275, 0), Vector(20, -17.275, 0)),
    Part.ArcOfCircle(Part.Circle(Vector(18.5, -17.275, 0), Vector(0, 0, 1), 1.5), math.radians(0), math.radians(180)),
], False)
sketch2.addConstraint([
    Sketcher.Constraint("Tangent", 0, 2, 1, 1),
    Sketcher.Constraint("Tangent", 1, 2, 2, 1),
    Sketcher.Constraint("Tangent", 2, 2, 3, 1),
    Sketcher.Constraint("Tangent", 3, 2, 0, 1),
    Sketcher.Constraint("Tangent", 4, 2, 5, 1),
    Sketcher.Constraint("Tangent", 5, 2, 6, 1),
    Sketcher.Constraint("Tangent", 6, 2, 7, 1),
    Sketcher.Constraint("Tangent", 7, 2, 4, 1),
    Sketcher.Constraint("Tangent", 8, 2, 9, 1),
    Sketcher.Constraint("Tangent", 9, 2, 10, 1),
    Sketcher.Constraint("Tangent", 10, 2, 11, 1),
    Sketcher.Constraint("Tangent", 11, 2, 8, 1),
    Sketcher.Constraint("Tangent", 12, 2, 13, 1),
    Sketcher.Constraint("Tangent", 13, 2, 14, 1),
    Sketcher.Constraint("Tangent", 14, 2, 15, 1),
    Sketcher.Constraint("Tangent", 15, 2, 12, 1),
    Sketcher.Constraint("Vertical", 0),
    Sketcher.Constraint("Vertical", 2),
    Sketcher.Constraint("Vertical", 4),
    Sketcher.Constraint("Vertical", 6),
    Sketcher.Constraint("Vertical", 8),
    Sketcher.Constraint("Vertical", 10),
    Sketcher.Constraint("Vertical", 12),
    Sketcher.Constraint("Vertical", 14),
    Sketcher.Constraint("Equal", 3, 5),
    Sketcher.Constraint("Equal", 7, 9),
    Sketcher.Constraint("Equal", 11, 13),
    Sketcher.Constraint("Symmetric", 7, 3, 9, 3, -2),
    Sketcher.Constraint("Symmetric", 3, 3, 13, 3, -2),
    Sketcher.Constraint("Horizontal", 5, 3, 11, 3),
    Sketcher.Constraint("Horizontal", 1, 3, 15, 3),
    Sketcher.Constraint("Vertical", 3, 3, 5, 3),
    Sketcher.Constraint("Equal", 2, 4),
    Sketcher.Constraint("Radius", 1, 1.5),
    Sketcher.Constraint("DistanceY", 0, 1, 0, 2, 12.0),
    Sketcher.Constraint("DistanceX", 0, 2, -1, 1, 17.0),
    Sketcher.Constraint("DistanceY", 5, 3, 3, 3, 25.0),
    Sketcher.Constraint("DistanceY", 1, 3, -1, 1, 17.275),
])
pocket1 = body.newObject("PartDesign::Pocket", "Pocket")
pocket1.Profile = sketch2
pocket1.Length = 10

doc.recompute()
